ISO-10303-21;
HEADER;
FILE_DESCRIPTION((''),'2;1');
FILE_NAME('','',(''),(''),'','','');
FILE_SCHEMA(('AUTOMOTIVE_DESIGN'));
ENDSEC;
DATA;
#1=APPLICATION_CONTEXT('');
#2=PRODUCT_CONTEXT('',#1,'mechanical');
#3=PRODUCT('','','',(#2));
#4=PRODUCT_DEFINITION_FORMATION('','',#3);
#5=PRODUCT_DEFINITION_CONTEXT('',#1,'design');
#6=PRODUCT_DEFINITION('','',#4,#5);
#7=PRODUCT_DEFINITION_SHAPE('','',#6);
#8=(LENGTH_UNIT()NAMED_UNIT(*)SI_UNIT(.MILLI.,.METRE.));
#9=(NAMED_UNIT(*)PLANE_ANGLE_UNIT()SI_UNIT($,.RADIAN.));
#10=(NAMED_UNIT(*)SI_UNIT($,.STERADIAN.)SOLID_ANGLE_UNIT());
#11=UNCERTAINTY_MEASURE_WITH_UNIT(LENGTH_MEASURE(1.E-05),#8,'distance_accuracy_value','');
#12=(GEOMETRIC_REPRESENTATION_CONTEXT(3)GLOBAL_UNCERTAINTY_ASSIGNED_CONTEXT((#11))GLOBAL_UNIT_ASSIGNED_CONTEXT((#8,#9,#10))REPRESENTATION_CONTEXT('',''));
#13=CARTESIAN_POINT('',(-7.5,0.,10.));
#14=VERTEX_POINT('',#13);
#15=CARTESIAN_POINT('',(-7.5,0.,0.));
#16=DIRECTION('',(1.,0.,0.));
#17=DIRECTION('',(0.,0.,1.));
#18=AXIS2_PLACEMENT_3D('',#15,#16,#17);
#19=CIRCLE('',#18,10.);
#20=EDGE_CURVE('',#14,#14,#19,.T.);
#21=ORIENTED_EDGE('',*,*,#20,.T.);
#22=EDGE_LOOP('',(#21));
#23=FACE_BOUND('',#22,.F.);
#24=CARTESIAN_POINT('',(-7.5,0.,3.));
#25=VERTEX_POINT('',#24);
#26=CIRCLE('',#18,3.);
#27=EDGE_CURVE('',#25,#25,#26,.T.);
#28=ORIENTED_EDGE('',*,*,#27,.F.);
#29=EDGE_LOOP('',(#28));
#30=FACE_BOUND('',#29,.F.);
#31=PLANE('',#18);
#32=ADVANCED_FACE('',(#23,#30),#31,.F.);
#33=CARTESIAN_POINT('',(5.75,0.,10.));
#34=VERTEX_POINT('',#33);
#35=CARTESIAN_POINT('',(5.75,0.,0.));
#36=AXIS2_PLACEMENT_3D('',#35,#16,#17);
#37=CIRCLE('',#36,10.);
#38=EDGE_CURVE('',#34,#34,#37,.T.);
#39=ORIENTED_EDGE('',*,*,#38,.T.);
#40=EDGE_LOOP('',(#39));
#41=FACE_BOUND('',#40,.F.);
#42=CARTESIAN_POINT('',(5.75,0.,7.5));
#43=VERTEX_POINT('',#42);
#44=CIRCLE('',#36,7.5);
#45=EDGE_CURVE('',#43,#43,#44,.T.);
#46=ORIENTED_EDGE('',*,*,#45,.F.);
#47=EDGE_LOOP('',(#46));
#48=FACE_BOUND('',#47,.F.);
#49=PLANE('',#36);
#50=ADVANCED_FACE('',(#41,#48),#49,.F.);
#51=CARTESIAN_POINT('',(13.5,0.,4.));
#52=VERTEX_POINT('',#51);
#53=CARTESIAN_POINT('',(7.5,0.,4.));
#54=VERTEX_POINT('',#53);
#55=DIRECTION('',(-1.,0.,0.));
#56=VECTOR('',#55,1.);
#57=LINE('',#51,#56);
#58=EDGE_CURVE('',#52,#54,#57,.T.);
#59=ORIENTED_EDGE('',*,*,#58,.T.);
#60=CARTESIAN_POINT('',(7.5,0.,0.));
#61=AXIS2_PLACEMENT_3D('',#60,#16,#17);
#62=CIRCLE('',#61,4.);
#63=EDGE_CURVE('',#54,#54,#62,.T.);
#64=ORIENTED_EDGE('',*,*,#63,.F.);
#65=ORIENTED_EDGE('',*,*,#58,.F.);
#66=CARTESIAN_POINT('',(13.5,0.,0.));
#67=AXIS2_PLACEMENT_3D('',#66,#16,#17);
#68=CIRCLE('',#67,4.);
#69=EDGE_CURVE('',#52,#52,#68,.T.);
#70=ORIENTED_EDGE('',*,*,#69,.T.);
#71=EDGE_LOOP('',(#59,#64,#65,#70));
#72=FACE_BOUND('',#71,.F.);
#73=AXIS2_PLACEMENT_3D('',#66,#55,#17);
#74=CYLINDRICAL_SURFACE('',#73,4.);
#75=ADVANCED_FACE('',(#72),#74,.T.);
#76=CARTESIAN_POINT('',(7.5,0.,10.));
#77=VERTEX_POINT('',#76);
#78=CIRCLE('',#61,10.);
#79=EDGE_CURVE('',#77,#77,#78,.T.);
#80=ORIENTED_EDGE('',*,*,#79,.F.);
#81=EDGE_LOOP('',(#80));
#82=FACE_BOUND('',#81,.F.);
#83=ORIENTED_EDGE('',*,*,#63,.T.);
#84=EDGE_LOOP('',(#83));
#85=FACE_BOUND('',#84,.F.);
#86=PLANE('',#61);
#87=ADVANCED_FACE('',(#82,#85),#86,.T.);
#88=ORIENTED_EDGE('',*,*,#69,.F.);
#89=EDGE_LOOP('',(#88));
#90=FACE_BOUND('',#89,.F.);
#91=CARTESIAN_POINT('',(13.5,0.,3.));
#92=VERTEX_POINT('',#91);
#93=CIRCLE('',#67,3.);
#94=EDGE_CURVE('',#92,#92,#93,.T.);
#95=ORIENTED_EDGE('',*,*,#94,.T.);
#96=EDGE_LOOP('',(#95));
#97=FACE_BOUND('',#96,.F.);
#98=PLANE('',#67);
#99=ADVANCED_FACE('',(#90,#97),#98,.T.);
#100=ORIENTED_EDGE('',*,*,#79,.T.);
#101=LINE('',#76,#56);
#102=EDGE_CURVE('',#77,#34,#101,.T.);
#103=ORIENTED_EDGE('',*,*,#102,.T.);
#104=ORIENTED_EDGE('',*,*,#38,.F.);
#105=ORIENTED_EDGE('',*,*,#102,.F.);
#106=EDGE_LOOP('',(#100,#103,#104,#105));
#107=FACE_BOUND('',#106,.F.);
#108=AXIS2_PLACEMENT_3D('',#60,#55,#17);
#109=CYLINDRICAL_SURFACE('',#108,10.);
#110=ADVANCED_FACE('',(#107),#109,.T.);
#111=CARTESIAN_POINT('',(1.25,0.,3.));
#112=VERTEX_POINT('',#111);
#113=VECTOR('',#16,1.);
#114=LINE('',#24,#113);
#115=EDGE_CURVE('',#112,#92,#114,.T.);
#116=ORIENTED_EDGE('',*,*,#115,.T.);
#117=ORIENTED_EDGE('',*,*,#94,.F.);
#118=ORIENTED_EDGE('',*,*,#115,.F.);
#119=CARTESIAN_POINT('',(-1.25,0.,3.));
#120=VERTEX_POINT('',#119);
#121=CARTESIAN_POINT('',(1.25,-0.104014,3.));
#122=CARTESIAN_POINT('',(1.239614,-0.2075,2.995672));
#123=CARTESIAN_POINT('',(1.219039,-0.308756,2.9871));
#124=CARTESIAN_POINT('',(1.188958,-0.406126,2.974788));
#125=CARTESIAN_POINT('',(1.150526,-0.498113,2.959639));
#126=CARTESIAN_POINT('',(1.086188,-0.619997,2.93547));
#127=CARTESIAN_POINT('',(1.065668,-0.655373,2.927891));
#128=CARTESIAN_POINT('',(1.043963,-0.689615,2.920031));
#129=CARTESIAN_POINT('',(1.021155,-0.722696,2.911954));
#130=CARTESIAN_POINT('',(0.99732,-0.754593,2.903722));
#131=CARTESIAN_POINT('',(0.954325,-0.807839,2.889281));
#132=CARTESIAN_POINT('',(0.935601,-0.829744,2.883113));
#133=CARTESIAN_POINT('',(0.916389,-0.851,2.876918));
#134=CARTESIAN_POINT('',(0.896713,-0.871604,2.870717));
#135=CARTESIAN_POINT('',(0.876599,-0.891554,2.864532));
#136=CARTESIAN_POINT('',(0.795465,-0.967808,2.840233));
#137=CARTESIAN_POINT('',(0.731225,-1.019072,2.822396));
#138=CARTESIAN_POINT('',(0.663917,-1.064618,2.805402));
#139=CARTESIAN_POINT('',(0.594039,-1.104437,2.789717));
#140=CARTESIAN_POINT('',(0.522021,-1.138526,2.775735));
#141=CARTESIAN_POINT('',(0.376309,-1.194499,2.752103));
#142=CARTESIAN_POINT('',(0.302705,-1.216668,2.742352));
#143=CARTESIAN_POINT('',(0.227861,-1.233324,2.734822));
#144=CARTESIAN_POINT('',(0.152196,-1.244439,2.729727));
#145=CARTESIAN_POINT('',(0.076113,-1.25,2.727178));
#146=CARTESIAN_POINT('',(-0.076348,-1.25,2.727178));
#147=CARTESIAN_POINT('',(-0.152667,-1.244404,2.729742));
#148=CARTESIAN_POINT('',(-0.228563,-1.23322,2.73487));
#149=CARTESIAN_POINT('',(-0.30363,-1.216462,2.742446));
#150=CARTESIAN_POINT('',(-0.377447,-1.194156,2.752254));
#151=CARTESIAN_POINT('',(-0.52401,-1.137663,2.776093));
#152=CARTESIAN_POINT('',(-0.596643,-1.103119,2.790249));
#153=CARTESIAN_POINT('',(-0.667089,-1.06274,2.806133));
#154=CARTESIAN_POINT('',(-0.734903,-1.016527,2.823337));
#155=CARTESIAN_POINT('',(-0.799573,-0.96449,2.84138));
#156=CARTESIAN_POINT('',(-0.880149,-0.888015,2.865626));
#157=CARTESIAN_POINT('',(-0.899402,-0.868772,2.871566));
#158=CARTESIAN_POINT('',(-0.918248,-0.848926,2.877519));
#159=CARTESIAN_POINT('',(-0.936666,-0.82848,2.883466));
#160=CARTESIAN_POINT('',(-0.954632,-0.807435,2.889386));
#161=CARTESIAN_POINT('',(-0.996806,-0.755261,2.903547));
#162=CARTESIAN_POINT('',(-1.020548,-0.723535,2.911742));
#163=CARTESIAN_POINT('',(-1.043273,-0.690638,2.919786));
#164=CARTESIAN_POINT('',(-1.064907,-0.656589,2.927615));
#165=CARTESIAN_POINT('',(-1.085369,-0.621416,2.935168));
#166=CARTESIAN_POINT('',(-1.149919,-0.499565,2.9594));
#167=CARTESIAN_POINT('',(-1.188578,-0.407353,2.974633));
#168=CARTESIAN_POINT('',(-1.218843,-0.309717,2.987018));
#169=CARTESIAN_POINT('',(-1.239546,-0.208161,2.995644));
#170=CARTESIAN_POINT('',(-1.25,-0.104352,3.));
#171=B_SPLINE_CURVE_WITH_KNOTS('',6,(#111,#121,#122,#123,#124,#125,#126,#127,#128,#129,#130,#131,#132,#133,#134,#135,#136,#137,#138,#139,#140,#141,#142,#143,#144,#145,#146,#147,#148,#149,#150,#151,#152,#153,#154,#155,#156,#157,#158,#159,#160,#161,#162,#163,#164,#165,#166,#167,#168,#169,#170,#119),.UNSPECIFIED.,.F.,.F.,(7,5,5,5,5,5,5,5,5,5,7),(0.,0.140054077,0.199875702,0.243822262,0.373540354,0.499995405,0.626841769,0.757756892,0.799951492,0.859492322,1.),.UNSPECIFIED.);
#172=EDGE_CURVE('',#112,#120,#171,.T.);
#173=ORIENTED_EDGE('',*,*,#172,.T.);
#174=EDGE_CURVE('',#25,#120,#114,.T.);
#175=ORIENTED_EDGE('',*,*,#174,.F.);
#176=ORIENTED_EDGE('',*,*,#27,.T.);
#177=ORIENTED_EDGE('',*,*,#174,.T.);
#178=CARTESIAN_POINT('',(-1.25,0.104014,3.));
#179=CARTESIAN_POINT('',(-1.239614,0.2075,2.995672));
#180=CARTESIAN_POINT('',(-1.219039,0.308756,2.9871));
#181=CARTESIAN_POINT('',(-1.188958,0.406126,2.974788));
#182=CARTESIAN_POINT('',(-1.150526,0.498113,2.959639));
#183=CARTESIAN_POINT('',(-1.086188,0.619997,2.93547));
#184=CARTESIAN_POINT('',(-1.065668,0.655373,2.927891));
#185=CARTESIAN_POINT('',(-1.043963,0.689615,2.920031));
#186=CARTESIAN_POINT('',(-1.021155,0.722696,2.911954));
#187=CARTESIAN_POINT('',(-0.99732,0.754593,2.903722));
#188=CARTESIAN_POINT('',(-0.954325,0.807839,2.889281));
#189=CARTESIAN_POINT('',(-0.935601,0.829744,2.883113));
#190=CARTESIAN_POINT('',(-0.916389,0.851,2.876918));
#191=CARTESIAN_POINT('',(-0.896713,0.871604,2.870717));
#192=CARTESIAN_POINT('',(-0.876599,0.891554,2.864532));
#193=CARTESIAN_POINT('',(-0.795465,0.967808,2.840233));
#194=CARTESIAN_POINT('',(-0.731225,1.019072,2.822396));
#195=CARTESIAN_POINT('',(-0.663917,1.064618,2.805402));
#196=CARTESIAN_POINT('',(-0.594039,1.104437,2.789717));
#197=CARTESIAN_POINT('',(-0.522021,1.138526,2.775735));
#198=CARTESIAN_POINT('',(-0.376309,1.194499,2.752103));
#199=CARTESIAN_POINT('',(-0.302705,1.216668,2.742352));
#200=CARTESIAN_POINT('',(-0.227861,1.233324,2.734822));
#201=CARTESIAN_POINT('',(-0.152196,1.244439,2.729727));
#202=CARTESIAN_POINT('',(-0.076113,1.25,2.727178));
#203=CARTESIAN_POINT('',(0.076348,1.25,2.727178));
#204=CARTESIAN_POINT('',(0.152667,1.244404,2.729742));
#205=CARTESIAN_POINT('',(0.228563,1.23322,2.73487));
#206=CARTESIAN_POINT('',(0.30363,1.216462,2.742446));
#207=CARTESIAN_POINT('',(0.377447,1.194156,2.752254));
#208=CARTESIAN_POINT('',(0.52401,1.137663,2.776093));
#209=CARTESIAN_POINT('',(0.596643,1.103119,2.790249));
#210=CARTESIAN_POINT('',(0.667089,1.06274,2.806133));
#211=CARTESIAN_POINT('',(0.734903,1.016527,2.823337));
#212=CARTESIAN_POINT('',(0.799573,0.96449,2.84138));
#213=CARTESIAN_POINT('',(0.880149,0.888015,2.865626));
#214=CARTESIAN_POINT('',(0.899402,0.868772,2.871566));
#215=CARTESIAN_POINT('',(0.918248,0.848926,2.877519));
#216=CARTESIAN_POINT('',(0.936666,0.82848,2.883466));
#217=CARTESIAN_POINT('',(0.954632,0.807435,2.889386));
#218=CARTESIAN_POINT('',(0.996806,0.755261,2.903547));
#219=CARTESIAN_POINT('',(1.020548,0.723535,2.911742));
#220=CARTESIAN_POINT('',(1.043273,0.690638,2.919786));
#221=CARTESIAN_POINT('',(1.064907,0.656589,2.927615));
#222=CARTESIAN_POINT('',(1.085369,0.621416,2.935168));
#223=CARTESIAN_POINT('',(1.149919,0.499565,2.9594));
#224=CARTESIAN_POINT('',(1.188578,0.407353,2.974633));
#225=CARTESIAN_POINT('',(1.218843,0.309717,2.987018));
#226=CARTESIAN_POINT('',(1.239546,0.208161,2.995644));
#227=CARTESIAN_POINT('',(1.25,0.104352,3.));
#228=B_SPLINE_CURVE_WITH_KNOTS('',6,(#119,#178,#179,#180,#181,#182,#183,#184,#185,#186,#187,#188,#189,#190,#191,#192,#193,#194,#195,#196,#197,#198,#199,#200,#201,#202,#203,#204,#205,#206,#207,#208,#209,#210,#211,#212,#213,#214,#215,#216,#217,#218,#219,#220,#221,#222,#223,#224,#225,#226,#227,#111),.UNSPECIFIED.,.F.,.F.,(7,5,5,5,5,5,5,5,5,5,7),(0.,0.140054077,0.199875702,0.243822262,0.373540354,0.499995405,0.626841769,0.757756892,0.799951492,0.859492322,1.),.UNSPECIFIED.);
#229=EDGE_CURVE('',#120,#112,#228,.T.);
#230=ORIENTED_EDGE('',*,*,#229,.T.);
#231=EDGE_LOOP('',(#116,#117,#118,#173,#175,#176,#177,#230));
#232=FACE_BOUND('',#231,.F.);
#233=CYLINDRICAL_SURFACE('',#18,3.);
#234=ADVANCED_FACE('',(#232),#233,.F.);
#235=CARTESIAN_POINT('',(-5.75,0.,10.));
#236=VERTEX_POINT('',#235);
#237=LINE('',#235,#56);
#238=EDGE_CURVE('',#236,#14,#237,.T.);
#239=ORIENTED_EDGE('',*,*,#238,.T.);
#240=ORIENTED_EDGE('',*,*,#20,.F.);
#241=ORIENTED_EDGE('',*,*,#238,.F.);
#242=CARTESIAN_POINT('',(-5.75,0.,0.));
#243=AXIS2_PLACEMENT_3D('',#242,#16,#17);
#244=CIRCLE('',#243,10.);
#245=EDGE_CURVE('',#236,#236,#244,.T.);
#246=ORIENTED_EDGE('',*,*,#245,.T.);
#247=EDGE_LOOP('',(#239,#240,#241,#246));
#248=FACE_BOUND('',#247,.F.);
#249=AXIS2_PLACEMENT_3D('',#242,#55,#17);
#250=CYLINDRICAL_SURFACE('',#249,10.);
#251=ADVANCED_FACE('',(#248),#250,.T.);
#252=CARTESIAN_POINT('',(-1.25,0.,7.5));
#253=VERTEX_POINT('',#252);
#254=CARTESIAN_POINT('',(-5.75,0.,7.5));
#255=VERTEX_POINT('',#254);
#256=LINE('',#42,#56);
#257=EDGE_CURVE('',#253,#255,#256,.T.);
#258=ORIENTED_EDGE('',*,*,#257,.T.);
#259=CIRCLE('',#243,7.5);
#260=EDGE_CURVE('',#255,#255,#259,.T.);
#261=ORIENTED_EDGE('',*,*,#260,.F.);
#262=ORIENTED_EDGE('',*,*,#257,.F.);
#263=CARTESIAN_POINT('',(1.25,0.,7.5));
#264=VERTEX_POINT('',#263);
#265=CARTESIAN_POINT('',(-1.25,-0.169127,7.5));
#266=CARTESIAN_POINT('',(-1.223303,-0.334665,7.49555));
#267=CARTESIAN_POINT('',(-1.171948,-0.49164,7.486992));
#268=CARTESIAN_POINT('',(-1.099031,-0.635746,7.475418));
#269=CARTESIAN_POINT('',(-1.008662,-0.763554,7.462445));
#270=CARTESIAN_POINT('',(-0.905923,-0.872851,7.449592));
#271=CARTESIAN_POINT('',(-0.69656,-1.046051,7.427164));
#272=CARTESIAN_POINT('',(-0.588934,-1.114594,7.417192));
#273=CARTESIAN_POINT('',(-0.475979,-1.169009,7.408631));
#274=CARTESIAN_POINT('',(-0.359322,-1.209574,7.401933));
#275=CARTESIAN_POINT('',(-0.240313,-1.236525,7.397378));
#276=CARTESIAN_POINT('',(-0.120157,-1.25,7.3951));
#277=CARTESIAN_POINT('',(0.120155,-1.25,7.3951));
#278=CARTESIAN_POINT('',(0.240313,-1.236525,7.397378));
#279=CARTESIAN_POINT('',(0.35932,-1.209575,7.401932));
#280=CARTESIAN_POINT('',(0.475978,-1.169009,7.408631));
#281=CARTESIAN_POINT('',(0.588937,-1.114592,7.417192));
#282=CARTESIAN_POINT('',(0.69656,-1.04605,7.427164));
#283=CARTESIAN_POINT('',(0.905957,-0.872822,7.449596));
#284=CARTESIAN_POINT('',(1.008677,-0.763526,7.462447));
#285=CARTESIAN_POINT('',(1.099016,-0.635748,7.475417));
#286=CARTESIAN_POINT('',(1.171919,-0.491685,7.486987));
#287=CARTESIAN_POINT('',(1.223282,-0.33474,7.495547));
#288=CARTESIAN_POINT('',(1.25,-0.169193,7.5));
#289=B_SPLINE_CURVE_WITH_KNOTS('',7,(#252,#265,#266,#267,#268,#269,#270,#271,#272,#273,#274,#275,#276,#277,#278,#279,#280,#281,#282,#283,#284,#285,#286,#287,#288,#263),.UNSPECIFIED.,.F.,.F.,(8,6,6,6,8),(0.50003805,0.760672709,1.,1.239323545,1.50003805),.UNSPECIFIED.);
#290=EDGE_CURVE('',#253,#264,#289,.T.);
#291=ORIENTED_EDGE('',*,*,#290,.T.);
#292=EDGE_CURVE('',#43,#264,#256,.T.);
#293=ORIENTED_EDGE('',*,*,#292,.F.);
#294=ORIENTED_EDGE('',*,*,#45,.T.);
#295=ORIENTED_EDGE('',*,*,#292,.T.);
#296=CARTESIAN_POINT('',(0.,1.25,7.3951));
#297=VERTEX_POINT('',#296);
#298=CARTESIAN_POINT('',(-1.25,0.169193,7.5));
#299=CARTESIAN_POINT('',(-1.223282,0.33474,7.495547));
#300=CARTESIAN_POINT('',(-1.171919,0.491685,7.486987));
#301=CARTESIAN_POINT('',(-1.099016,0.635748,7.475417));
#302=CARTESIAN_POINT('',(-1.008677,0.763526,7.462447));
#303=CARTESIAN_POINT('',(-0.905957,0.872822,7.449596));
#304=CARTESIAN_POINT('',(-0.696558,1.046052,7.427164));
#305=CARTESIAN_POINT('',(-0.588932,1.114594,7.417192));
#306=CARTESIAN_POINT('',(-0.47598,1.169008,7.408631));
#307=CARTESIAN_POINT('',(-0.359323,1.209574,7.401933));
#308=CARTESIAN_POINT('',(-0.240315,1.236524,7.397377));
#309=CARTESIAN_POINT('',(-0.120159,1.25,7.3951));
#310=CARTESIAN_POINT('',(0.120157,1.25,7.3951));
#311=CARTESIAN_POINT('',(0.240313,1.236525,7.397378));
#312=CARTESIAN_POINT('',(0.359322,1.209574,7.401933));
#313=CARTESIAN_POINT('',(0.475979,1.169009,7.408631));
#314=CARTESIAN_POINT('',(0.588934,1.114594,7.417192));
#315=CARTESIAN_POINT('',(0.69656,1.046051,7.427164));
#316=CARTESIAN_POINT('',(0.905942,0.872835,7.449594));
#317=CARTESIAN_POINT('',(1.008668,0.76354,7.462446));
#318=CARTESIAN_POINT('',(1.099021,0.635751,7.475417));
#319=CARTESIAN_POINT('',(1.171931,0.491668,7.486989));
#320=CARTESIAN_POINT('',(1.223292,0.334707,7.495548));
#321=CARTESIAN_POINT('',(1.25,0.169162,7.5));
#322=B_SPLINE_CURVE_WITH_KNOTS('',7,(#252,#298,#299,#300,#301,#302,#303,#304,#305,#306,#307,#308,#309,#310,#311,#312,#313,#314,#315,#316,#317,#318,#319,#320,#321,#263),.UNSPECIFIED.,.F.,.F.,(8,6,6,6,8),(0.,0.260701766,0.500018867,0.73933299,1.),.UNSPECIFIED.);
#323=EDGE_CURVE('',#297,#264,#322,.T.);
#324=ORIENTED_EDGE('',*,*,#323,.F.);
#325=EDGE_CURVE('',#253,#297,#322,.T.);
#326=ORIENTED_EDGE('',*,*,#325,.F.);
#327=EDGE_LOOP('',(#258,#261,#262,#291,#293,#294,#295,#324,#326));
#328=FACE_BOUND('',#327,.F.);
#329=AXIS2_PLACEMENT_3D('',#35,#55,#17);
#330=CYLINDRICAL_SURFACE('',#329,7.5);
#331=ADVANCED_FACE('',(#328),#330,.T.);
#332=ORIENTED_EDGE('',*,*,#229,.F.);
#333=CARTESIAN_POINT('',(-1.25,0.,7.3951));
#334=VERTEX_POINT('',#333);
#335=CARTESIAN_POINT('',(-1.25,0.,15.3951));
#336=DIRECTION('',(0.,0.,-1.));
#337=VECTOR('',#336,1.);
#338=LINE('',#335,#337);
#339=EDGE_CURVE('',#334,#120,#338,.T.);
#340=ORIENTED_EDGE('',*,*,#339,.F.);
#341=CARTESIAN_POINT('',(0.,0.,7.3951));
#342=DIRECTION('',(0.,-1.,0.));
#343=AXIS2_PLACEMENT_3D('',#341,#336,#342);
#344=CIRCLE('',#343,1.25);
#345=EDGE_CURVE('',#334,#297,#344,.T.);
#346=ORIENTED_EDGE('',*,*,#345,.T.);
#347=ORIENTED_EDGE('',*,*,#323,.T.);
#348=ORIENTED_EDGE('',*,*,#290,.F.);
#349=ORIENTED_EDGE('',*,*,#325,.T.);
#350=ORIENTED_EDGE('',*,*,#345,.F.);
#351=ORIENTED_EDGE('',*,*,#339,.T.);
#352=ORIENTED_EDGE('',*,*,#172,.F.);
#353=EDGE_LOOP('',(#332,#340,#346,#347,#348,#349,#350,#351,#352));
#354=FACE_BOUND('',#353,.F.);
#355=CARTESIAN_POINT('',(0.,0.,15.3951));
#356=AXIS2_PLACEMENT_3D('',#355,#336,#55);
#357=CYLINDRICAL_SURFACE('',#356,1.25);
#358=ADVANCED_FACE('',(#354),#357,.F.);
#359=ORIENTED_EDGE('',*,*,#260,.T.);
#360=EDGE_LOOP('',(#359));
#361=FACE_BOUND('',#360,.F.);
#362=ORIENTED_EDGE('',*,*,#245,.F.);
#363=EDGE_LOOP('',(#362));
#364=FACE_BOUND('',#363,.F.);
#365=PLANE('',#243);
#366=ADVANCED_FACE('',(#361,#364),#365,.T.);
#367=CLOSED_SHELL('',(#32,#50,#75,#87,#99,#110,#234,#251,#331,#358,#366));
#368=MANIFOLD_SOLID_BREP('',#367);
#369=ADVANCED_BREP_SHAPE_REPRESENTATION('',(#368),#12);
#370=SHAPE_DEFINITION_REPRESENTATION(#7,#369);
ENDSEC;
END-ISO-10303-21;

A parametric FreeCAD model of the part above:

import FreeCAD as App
import Part
import Sketcher
from FreeCAD import Vector


def add_polygon(sketch, points):
    """Adds a closed chain of lines whose ends are joined by coincident constraints."""
    first, n = sketch.GeometryCount, len(points)
    for a, b in zip(points, points[1:] + points[:1]):
        sketch.addGeometry(Part.LineSegment(App.Vector(*a, 0), App.Vector(*b, 0)), False)
    for i in range(n):
        sketch.addConstraint(Sketcher.Constraint("Coincident", first + i, 2, first + (i + 1) % n, 1))

doc = App.newDocument("Part")
body = doc.addObject("PartDesign::Body", "Body")

sketch1 = body.newObject("Sketcher::SketchObject", "Sketch")
sketch1.AttachmentSupport = (doc.getObject("XZ_Plane"), [""])
sketch1.MapMode = "FlatFace"
add_polygon(sketch1, [(-7.5, 3), (13.5, 3), (13.5, 4), (7.5, 4), (7.5, 10), (5.8, 10), (5.8, 7.5), (-5.8, 7.5), (-5.8, 10), (-7.5, 10)])
sketch1.addConstraint(Sketcher.Constraint("Horizontal", 0))
sketch1.addConstraint(Sketcher.Constraint("Vertical", 1))
sketch1.addConstraint(Sketcher.Constraint("Horizontal", 2))
sketch1.addConstraint(Sketcher.Constraint("Vertical", 3))
sketch1.addConstraint(Sketcher.Constraint("Horizontal", 4))
sketch1.addConstraint(Sketcher.Constraint("Vertical", 5))
sketch1.addConstraint(Sketcher.Constraint("Horizontal", 6))
sketch1.addConstraint(Sketcher.Constraint("Vertical", 7))
sketch1.addConstraint(Sketcher.Constraint("Horizontal", 8))
sketch1.addConstraint(Sketcher.Constraint("Vertical", 9))
sketch1.addConstraint(Sketcher.Constraint("Symmetric", 4, 2, 7, 2, -2))
sketch1.addConstraint(Sketcher.Constraint("Equal", 4, 8))
sketch1.addConstraint(Sketcher.Constraint("Equal", 2, 3))
sketch1.addConstraint(Sketcher.Constraint("DistanceX", 0, 1, 0, 2, 21.0))
sketch1.addConstraint(Sketcher.Constraint("DistanceX", 2, 2, 2, 1, 6.0))
sketch1.addConstraint(Sketcher.Constraint("DistanceY", 1, 1, 1, 2, 1.0))
sketch1.addConstraint(Sketcher.Constraint("DistanceX", 6, 2, 6, 1, 11.5))
sketch1.addConstraint(Sketcher.Constraint("DistanceY", 5, 2, 5, 1, 2.5))
sketch1.addConstraint(Sketcher.Constraint("DistanceY", -1, 1, 0, 2, 3.0))
revolution = body.newObject("PartDesign::Revolution", "Revolution")
revolution.Profile = sketch1
revolution.ReferenceAxis = (sketch1, ["H_Axis"])
revolution.Angle = 360

sketch2 = body.newObject("Sketcher::SketchObject", "Sketch001")
sketch2.AttachmentSupport = (doc.getObject("XY_Plane"), [""])
sketch2.MapMode = "FlatFace"
sketch2.AttachmentOffset = App.Placement(Vector(0, 0, 25), App.Rotation())
sketch2.addGeometry(Part.Circle(Vector(0, 0, 0), Vector(0, 0, 1), 1.2), False)
sketch2.addConstraint(Sketcher.Constraint("Coincident", 0, 3, -1, 1))
sketch2.addConstraint(Sketcher.Constraint("Diameter", 0, 2.5))
doc.recompute()
hole = body.newObject("PartDesign::Hole", "Hole")
hole.Profile = sketch2
hole.ThreadType = "None"
hole.Diameter = 2.5
hole.DepthType = "Dimension"
hole.Depth = 17.6049
hole.DrillPoint = "Flat"

sketch3 = body.newObject("Sketcher::SketchObject", "Sketch002")
sketch3.AttachmentSupport = (doc.getObject("XY_Plane"), [""])
sketch3.MapMode = "FlatFace"
sketch3.AttachmentOffset = App.Placement(Vector(0, 0, 7.3951), App.Rotation())
sketch3.addGeometry(Part.Circle(Vector(0, 0, 0), Vector(0, 0, 1), 1.2), False)
sketch3.addConstraint(Sketcher.Constraint("Coincident", 0, 3, -1, 1))
sketch3.addConstraint(Sketcher.Constraint("Diameter", 0, 2.5))
doc.recompute()
hole2 = body.newObject("PartDesign::Hole", "Hole001")
hole2.Profile = sketch3
hole2.ThreadType = "None"
hole2.Diameter = 2.5
hole2.DepthType = "Dimension"
hole2.Depth = 8
hole2.DrillPoint = "Angled"
hole2.DrillPointAngle = 118

doc.recompute()
